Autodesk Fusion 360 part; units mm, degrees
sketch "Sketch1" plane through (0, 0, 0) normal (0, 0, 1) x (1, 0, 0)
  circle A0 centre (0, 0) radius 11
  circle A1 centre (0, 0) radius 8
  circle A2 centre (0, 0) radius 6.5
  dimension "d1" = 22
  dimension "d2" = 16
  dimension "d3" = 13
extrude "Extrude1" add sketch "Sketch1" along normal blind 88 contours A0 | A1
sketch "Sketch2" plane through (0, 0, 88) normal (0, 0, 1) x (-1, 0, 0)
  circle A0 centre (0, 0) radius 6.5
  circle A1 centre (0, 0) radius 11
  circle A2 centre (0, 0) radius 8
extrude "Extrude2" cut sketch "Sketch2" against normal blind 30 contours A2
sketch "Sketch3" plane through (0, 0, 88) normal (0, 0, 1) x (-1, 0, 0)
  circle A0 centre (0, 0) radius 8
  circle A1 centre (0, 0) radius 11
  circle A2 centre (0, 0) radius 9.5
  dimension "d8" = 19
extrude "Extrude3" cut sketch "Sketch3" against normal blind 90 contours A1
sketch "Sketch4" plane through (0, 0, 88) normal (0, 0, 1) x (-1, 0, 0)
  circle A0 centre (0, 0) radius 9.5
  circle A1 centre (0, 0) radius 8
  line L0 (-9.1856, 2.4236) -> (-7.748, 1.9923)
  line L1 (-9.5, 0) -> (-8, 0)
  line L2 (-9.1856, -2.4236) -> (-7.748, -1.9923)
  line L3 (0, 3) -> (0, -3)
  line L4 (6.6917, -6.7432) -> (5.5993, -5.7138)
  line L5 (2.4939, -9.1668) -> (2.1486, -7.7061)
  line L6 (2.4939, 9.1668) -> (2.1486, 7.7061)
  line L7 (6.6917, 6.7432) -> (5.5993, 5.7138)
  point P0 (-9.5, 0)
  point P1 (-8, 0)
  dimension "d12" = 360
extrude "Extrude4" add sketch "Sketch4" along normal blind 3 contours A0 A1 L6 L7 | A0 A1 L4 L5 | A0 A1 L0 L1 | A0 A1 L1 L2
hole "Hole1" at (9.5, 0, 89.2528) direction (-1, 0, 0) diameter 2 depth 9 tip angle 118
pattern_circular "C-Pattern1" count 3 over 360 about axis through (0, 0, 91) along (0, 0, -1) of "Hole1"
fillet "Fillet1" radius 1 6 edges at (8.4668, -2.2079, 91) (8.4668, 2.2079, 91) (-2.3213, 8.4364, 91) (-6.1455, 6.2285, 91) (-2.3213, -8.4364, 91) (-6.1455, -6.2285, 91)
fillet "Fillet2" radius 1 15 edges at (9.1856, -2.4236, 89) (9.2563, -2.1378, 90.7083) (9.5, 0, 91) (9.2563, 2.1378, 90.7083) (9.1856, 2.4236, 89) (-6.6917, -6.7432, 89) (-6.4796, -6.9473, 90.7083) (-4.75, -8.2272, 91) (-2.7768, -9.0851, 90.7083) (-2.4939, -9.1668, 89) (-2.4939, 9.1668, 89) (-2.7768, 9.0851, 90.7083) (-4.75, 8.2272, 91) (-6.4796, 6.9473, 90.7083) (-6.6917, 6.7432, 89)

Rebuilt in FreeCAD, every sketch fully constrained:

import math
import FreeCAD as App
import Part
import Sketcher
Q = App.Units.Quantity


def edges_at(feature, points):
    """Names of the edges that pass closest to the given points."""
    edges = feature.Shape.Edges
    near = lambda p: min(range(len(edges)), key=lambda i: edges[i].distToShape(Part.Vertex(*p))[0])
    return sorted({f"Edge{near(p) + 1}" for p in points})

doc = App.newDocument("Part")
body = doc.addObject("PartDesign::Body", "Body")

# Sketch on XY plane
sketch1 = body.newObject("Sketcher::SketchObject", "Sketch")
sketch1.AttachmentSupport = (doc.getObject("XY_Plane"), [""])
sketch1.MapMode = "FlatFace"
sketch1.addGeometry([
    Part.Circle(App.Vector(0, 0, 0), App.Vector(0, 0, 1), 11),
    Part.Circle(App.Vector(0, 0, 0), App.Vector(0, 0, 1), 6),
], False)
sketch1.addConstraint([
    Sketcher.Constraint("Coincident", 0, 3, -1, 1),
    Sketcher.Constraint("Coincident", 1, 3, -1, 1),
    Sketcher.Constraint("Diameter", 0, 22.0),
    Sketcher.Constraint("Diameter", 1, 13.0),
])
pad1 = body.newObject("PartDesign::Pad", "Pad")
pad1.Profile = sketch1
pad1.Length = 88

# Sketch on XY plane
sketch2 = body.newObject("Sketcher::SketchObject", "Sketch001")
sketch2.AttachmentSupport = (doc.getObject("XY_Plane"), [""])
sketch2.MapMode = "FlatFace"
sketch2.AttachmentOffset = App.Placement(App.Vector(0, 0, 88), App.Rotation())
sketch2.addGeometry([
    Part.Circle(App.Vector(0, 0, 0), App.Vector(0, 0, 1), 8),
    Part.Circle(App.Vector(0, 0, 0), App.Vector(0, 0, 1), 6),
], False)
sketch2.addConstraint([
    Sketcher.Constraint("Coincident", 0, 3, -1, 1),
    Sketcher.Constraint("Coincident", 1, 3, -1, 1),
    Sketcher.Constraint("Diameter", 0, 16.0),
    Sketcher.Constraint("Diameter", 1, 13.0),
])
pocket1 = body.newObject("PartDesign::Pocket", "Pocket")
pocket1.Profile = sketch2
pocket1.Length = 30

# Sketch on XY plane
sketch3 = body.newObject("Sketcher::SketchObject", "Sketch002")
sketch3.AttachmentSupport = (doc.getObject("XY_Plane"), [""])
sketch3.MapMode = "FlatFace"
sketch3.AttachmentOffset = App.Placement(App.Vector(0, 0, 88), App.Rotation())
sketch3.addGeometry([
    Part.Circle(App.Vector(0, 0, 0), App.Vector(0, 0, 1), 11),
    Part.Circle(App.Vector(0, 0, 0), App.Vector(0, 0, 1), 10),
], False)
sketch3.addConstraint([
    Sketcher.Constraint("Coincident", 0, 3, -1, 1),
    Sketcher.Constraint("Coincident", 1, 3, -1, 1),
    Sketcher.Constraint("Diameter", 1, 19.0),
    Sketcher.Constraint("Diameter", 0, 22.0),
])
pocket2 = body.newObject("PartDesign::Pocket", "Pocket001")
pocket2.Profile = sketch3
pocket2.Length = 90

# Sketch on XY plane
sketch4 = body.newObject("Sketcher::SketchObject", "Sketch003")
sketch4.AttachmentSupport = (doc.getObject("XY_Plane"), [""])
sketch4.MapMode = "FlatFace"
sketch4.AttachmentOffset = App.Placement(App.Vector(0, 0, 88), App.Rotation())
sketch4.addGeometry([
    Part.LineSegment(App.Vector(-5.6, -5.7, 0), App.Vector(-6.7, -6.7, 0)),  # 0
    Part.ArcOfCircle(Part.Circle(App.Vector(0, 0, 0), App.Vector(0, 0, 1), 9.5), math.radians(-135), math.radians(-105)),  # 1
    Part.LineSegment(App.Vector(-2.5, -9.2, 0), App.Vector(-2.1, -7.7, 0)),  # 2
    Part.ArcOfCircle(Part.Circle(App.Vector(0, 0, 0), App.Vector(0, 0, 1), 8), math.radians(-134), math.radians(-106)),  # 3
    Part.ArcOfCircle(Part.Circle(App.Vector(0, 0, 0), App.Vector(0, 0, 1), 9.5), math.radians(105), math.radians(135)),  # 4
    Part.LineSegment(App.Vector(-6.7, 6.7, 0), App.Vector(-5.6, 5.7, 0)),  # 5
    Part.ArcOfCircle(Part.Circle(App.Vector(0, 0, 0), App.Vector(0, 0, 1), 8), math.radians(106), math.radians(134)),  # 6
    Part.LineSegment(App.Vector(-2.1, 7.7, 0), App.Vector(-2.5, 9.2, 0)),  # 7
    Part.LineSegment(App.Vector(7.7, -2, 0), App.Vector(9.2, -2.4, 0)),  # 8
    Part.ArcOfCircle(Part.Circle(App.Vector(0, 0, 0), App.Vector(0, 0, 1), 9.5), math.radians(-15), math.radians(15)),  # 9
    Part.LineSegment(App.Vector(9.2, 2.4, 0), App.Vector(7.7, 2, 0)),  # 10
    Part.ArcOfCircle(Part.Circle(App.Vector(0, 0, 0), App.Vector(0, 0, 1), 8), math.radians(-14), math.radians(14)),  # 11
], False)
sketch4.addConstraint([
    Sketcher.Constraint("Coincident", 0, 2, 1, 1),
    Sketcher.Constraint("Coincident", 1, 2, 2, 1),
    Sketcher.Constraint("Coincident", 2, 2, 3, 2),
    Sketcher.Constraint("Coincident", 3, 1, 0, 1),
    Sketcher.Constraint("Coincident", 4, 2, 5, 1),
    Sketcher.Constraint("Coincident", 5, 2, 6, 2),
    Sketcher.Constraint("Coincident", 6, 1, 7, 1),
    Sketcher.Constraint("Coincident", 7, 2, 4, 1),
    Sketcher.Constraint("Coincident", 8, 2, 9, 1),
    Sketcher.Constraint("Coincident", 9, 2, 10, 1),
    Sketcher.Constraint("Coincident", 10, 2, 11, 2),
    Sketcher.Constraint("Coincident", 11, 1, 8, 1),
    Sketcher.Constraint("Coincident", 1, 3, -1, 1),
    Sketcher.Constraint("Coincident", 3, 3, -1, 1),
    Sketcher.Constraint("Coincident", 4, 3, -1, 1),
    Sketcher.Constraint("Coincident", 6, 3, -1, 1),
    Sketcher.Constraint("Coincident", 9, 3, -1, 1),
    Sketcher.Constraint("Coincident", 11, 3, -1, 1),
    Sketcher.Constraint("Equal", 1, 4),
    Sketcher.Constraint("Equal", 3, 6),
    Sketcher.Constraint("Equal", 4, 9),
    Sketcher.Constraint("Equal", 6, 11),
    Sketcher.Constraint("Vertical", 0, 2, 4, 2),
    Sketcher.Constraint("Vertical", 3, 1, 5, 2),
    Sketcher.Constraint("Vertical", 2, 2, 6, 1),
    Sketcher.Constraint("Vertical", 1, 2, 7, 2),
    Sketcher.Constraint("Vertical", 8, 2, 9, 2),
    Sketcher.Constraint("Vertical", 10, 2, 11, 1),
    Sketcher.Constraint("Equal", 0, 2),
    Sketcher.Constraint("Equal", 7, 8),
    Sketcher.Constraint("Radius", 3, 8.0),
    Sketcher.Constraint("Radius", 1, 9.5),
    Sketcher.Constraint("Angle", 0, Q("-136.7007 deg")),
    Sketcher.Constraint("Angle", 2, Q("76.6998 deg")),
    Sketcher.Constraint("Angle", 8, Q("-16.7 deg")),
    Sketcher.Constraint("DistanceX", 1, 2, -1, 1, 2.494),
])
pad2 = body.newObject("PartDesign::Pad", "Pad001")
pad2.Profile = sketch4
pad2.Length = 3

# Sketch on YZ plane
sketch5 = body.newObject("Sketcher::SketchObject", "Sketch004")
sketch5.AttachmentSupport = (doc.getObject("YZ_Plane"), [""])
sketch5.MapMode = "FlatFace"
sketch5.AttachmentOffset = App.Placement(App.Vector(0, 0, 9.5), App.Rotation())
sketch5.addGeometry(Part.Circle(App.Vector(0, 89.3, 0), App.Vector(0, 0, 1), 1), False)
sketch5.addConstraint([
    Sketcher.Constraint("PointOnObject", 0, 3, -2),
    Sketcher.Constraint("Diameter", 0, 2.0),
    Sketcher.Constraint("DistanceY", -1, 1, 0, 3, 89.2528),
])
doc.recompute()
hole = body.newObject("PartDesign::Hole", "Hole")
hole.Profile = sketch5
hole.ThreadType = "None"
hole.Diameter = 2
hole.DepthType = "Dimension"
hole.Depth = 9
hole.DrillPoint = "Angled"
hole.DrillPointAngle = 118
doc.recompute()

polarpattern = body.newObject("PartDesign::PolarPattern", "PolarPattern")
polarpattern.Originals = [hole]
polarpattern.Axis = (doc.getObject("Z_Axis"), [""])
polarpattern.Angle = 360
polarpattern.Occurrences = 3
body.Tip = polarpattern
doc.recompute()

fillet = body.newObject("PartDesign::Fillet", "Fillet")
fillet.Base = (polarpattern, edges_at(polarpattern, [
    (8.467, -2.208, 91),
    (8.467, 2.208, 91),
    (-2.321, 8.436, 91),
    (-6.146, 6.229, 91),
    (-2.321, -8.436, 91),
    (-6.146, -6.229, 91),
]))
fillet.Radius = 1
doc.recompute()

fillet2 = body.newObject("PartDesign::Fillet", "Fillet001")
fillet2.Base = (fillet, edges_at(fillet, [
    (9.186, -2.424, 89),
    (9.256, -2.138, 90.708),
    (9.5, 0, 91),
    (9.256, 2.138, 90.708),
    (9.186, 2.424, 89),
    (-6.692, -6.743, 89),
    (-6.48, -6.947, 90.708),
    (-4.75, -8.227, 91),
    (-2.777, -9.085, 90.708),
    (-2.494, -9.167, 89),
    (-2.494, 9.167, 89),
    (-2.777, 9.085, 90.708),
    (-4.75, 8.227, 91),
    (-6.48, 6.947, 90.708),
    (-6.692, 6.743, 89),
]))
fillet2.Radius = 1

doc.recompute()
